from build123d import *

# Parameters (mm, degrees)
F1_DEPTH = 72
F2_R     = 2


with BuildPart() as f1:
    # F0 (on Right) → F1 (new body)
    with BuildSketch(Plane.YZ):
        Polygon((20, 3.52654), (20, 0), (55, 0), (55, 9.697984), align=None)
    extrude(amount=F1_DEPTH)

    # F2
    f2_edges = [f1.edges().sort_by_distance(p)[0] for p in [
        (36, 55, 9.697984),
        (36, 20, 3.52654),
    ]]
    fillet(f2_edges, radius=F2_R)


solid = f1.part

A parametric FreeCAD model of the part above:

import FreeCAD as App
import Part
import Sketcher
from FreeCAD import Vector
Q = App.Units.Quantity


def edges_at(feature, points):
    """Names of the edges that pass closest to the given points."""
    edges = feature.Shape.Edges
    near = lambda p: min(range(len(edges)), key=lambda i: edges[i].distToShape(Part.Vertex(*p))[0])
    return sorted({f"Edge{near(p) + 1}" for p in points})


def add_polygon(sketch, points):
    """Adds a closed chain of lines whose ends are joined by coincident constraints."""
    first, n = sketch.GeometryCount, len(points)
    for a, b in zip(points, points[1:] + points[:1]):
        sketch.addGeometry(Part.LineSegment(App.Vector(*a, 0), App.Vector(*b, 0)), False)
    for i in range(n):
        sketch.addConstraint(Sketcher.Constraint("Coincident", first + i, 2, first + (i + 1) % n, 1))

doc = App.newDocument("Part")
body = doc.addObject("PartDesign::Body", "Body")

sketch1 = doc.addObject("Sketcher::SketchObject", "Sketch")
body.addObject(sketch1)
sketch1.AttachmentSupport = (doc.YZ_Plane, [""])
sketch1.MapMode = "FlatFace"
add_polygon(sketch1, [(20, 3.5), (20, 0), (55, 0), (55, 9.7)])
sketch1.addConstraint(Sketcher.Constraint("Vertical", 0))
sketch1.addConstraint(Sketcher.Constraint("Horizontal", 1))
sketch1.addConstraint(Sketcher.Constraint("Vertical", 2))
sketch1.addConstraint(Sketcher.Constraint("PointOnObject", 0, 2, -1))
sketch1.addConstraint(Sketcher.Constraint("DistanceX", 1, 1, 1, 2, 35.0))
sketch1.addConstraint(Sketcher.Constraint("Angle", 3, Q("-170.000001 deg")))
sketch1.addConstraint(Sketcher.Constraint("DistanceX", -1, 1, 0, 2, 20.0))
sketch1.addConstraint(Sketcher.Constraint("DistanceY", 0, 2, 0, 1, 3.52654))
pad1 = doc.addObject("PartDesign::Pad", "Pad")
body.addObject(pad1)
pad1.Profile = sketch1
pad1.Length = 72
doc.recompute()

fillet = doc.addObject("PartDesign::Fillet", "Fillet")
body.addObject(fillet)
fillet.Base = (pad1, edges_at(pad1, [(36, 55, 9.698), (36, 20, 3.527)]))
fillet.Radius = 2

doc.recompute()
